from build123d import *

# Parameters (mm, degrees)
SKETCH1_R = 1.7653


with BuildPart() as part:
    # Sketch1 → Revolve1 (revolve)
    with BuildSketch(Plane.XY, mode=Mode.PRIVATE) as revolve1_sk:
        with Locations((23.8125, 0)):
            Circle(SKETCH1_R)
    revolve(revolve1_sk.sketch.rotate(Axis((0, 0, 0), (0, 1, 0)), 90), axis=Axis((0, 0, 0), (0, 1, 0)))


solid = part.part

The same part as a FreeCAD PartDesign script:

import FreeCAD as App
import Part
import Sketcher
from FreeCAD import Vector
Q = App.Units.Quantity

doc = App.newDocument("Part")
params = doc.addObject("Spreadsheet::Sheet", "Params")
for row, (alias, value) in enumerate([
    ("sketch1_diameter", "0.139 in"),
    ("revolution_angle", "360 deg"),
], start=1):
    params.set(f"A{row}", alias)
    params.set(f"B{row}", "=" + value)
    params.setAlias(f"B{row}", alias)

body = doc.addObject("PartDesign::Body", "Body")

# Sketch on XY plane
sketch1 = doc.addObject("Sketcher::SketchObject", "Sketch")
body.addObject(sketch1)
sketch1.AttachmentSupport = (doc.XY_Plane, [""])
sketch1.MapMode = "FlatFace"
sketch1.addGeometry(Part.Circle(Vector(23.8125, 0, 0), Vector(0, 0, 1), 1.7653), False)
sketch1.addConstraint([
    Sketcher.Constraint("PointOnObject", 0, 3, -1),
    Sketcher.Constraint("Diameter", 0, Q("0.139 in")),
    Sketcher.Constraint("DistanceX", -1, 1, 0, 3, Q("0.9375 in")),
])
sketch1.setExpression("Constraints[1]", "Params.sketch1_diameter")
revolution = doc.addObject("PartDesign::Revolution", "Revolution")
body.addObject(revolution)
revolution.Profile = sketch1
revolution.ReferenceAxis = (sketch1, ["V_Axis"])
revolution.setExpression("Angle", "Params.revolution_angle")

doc.recompute()
